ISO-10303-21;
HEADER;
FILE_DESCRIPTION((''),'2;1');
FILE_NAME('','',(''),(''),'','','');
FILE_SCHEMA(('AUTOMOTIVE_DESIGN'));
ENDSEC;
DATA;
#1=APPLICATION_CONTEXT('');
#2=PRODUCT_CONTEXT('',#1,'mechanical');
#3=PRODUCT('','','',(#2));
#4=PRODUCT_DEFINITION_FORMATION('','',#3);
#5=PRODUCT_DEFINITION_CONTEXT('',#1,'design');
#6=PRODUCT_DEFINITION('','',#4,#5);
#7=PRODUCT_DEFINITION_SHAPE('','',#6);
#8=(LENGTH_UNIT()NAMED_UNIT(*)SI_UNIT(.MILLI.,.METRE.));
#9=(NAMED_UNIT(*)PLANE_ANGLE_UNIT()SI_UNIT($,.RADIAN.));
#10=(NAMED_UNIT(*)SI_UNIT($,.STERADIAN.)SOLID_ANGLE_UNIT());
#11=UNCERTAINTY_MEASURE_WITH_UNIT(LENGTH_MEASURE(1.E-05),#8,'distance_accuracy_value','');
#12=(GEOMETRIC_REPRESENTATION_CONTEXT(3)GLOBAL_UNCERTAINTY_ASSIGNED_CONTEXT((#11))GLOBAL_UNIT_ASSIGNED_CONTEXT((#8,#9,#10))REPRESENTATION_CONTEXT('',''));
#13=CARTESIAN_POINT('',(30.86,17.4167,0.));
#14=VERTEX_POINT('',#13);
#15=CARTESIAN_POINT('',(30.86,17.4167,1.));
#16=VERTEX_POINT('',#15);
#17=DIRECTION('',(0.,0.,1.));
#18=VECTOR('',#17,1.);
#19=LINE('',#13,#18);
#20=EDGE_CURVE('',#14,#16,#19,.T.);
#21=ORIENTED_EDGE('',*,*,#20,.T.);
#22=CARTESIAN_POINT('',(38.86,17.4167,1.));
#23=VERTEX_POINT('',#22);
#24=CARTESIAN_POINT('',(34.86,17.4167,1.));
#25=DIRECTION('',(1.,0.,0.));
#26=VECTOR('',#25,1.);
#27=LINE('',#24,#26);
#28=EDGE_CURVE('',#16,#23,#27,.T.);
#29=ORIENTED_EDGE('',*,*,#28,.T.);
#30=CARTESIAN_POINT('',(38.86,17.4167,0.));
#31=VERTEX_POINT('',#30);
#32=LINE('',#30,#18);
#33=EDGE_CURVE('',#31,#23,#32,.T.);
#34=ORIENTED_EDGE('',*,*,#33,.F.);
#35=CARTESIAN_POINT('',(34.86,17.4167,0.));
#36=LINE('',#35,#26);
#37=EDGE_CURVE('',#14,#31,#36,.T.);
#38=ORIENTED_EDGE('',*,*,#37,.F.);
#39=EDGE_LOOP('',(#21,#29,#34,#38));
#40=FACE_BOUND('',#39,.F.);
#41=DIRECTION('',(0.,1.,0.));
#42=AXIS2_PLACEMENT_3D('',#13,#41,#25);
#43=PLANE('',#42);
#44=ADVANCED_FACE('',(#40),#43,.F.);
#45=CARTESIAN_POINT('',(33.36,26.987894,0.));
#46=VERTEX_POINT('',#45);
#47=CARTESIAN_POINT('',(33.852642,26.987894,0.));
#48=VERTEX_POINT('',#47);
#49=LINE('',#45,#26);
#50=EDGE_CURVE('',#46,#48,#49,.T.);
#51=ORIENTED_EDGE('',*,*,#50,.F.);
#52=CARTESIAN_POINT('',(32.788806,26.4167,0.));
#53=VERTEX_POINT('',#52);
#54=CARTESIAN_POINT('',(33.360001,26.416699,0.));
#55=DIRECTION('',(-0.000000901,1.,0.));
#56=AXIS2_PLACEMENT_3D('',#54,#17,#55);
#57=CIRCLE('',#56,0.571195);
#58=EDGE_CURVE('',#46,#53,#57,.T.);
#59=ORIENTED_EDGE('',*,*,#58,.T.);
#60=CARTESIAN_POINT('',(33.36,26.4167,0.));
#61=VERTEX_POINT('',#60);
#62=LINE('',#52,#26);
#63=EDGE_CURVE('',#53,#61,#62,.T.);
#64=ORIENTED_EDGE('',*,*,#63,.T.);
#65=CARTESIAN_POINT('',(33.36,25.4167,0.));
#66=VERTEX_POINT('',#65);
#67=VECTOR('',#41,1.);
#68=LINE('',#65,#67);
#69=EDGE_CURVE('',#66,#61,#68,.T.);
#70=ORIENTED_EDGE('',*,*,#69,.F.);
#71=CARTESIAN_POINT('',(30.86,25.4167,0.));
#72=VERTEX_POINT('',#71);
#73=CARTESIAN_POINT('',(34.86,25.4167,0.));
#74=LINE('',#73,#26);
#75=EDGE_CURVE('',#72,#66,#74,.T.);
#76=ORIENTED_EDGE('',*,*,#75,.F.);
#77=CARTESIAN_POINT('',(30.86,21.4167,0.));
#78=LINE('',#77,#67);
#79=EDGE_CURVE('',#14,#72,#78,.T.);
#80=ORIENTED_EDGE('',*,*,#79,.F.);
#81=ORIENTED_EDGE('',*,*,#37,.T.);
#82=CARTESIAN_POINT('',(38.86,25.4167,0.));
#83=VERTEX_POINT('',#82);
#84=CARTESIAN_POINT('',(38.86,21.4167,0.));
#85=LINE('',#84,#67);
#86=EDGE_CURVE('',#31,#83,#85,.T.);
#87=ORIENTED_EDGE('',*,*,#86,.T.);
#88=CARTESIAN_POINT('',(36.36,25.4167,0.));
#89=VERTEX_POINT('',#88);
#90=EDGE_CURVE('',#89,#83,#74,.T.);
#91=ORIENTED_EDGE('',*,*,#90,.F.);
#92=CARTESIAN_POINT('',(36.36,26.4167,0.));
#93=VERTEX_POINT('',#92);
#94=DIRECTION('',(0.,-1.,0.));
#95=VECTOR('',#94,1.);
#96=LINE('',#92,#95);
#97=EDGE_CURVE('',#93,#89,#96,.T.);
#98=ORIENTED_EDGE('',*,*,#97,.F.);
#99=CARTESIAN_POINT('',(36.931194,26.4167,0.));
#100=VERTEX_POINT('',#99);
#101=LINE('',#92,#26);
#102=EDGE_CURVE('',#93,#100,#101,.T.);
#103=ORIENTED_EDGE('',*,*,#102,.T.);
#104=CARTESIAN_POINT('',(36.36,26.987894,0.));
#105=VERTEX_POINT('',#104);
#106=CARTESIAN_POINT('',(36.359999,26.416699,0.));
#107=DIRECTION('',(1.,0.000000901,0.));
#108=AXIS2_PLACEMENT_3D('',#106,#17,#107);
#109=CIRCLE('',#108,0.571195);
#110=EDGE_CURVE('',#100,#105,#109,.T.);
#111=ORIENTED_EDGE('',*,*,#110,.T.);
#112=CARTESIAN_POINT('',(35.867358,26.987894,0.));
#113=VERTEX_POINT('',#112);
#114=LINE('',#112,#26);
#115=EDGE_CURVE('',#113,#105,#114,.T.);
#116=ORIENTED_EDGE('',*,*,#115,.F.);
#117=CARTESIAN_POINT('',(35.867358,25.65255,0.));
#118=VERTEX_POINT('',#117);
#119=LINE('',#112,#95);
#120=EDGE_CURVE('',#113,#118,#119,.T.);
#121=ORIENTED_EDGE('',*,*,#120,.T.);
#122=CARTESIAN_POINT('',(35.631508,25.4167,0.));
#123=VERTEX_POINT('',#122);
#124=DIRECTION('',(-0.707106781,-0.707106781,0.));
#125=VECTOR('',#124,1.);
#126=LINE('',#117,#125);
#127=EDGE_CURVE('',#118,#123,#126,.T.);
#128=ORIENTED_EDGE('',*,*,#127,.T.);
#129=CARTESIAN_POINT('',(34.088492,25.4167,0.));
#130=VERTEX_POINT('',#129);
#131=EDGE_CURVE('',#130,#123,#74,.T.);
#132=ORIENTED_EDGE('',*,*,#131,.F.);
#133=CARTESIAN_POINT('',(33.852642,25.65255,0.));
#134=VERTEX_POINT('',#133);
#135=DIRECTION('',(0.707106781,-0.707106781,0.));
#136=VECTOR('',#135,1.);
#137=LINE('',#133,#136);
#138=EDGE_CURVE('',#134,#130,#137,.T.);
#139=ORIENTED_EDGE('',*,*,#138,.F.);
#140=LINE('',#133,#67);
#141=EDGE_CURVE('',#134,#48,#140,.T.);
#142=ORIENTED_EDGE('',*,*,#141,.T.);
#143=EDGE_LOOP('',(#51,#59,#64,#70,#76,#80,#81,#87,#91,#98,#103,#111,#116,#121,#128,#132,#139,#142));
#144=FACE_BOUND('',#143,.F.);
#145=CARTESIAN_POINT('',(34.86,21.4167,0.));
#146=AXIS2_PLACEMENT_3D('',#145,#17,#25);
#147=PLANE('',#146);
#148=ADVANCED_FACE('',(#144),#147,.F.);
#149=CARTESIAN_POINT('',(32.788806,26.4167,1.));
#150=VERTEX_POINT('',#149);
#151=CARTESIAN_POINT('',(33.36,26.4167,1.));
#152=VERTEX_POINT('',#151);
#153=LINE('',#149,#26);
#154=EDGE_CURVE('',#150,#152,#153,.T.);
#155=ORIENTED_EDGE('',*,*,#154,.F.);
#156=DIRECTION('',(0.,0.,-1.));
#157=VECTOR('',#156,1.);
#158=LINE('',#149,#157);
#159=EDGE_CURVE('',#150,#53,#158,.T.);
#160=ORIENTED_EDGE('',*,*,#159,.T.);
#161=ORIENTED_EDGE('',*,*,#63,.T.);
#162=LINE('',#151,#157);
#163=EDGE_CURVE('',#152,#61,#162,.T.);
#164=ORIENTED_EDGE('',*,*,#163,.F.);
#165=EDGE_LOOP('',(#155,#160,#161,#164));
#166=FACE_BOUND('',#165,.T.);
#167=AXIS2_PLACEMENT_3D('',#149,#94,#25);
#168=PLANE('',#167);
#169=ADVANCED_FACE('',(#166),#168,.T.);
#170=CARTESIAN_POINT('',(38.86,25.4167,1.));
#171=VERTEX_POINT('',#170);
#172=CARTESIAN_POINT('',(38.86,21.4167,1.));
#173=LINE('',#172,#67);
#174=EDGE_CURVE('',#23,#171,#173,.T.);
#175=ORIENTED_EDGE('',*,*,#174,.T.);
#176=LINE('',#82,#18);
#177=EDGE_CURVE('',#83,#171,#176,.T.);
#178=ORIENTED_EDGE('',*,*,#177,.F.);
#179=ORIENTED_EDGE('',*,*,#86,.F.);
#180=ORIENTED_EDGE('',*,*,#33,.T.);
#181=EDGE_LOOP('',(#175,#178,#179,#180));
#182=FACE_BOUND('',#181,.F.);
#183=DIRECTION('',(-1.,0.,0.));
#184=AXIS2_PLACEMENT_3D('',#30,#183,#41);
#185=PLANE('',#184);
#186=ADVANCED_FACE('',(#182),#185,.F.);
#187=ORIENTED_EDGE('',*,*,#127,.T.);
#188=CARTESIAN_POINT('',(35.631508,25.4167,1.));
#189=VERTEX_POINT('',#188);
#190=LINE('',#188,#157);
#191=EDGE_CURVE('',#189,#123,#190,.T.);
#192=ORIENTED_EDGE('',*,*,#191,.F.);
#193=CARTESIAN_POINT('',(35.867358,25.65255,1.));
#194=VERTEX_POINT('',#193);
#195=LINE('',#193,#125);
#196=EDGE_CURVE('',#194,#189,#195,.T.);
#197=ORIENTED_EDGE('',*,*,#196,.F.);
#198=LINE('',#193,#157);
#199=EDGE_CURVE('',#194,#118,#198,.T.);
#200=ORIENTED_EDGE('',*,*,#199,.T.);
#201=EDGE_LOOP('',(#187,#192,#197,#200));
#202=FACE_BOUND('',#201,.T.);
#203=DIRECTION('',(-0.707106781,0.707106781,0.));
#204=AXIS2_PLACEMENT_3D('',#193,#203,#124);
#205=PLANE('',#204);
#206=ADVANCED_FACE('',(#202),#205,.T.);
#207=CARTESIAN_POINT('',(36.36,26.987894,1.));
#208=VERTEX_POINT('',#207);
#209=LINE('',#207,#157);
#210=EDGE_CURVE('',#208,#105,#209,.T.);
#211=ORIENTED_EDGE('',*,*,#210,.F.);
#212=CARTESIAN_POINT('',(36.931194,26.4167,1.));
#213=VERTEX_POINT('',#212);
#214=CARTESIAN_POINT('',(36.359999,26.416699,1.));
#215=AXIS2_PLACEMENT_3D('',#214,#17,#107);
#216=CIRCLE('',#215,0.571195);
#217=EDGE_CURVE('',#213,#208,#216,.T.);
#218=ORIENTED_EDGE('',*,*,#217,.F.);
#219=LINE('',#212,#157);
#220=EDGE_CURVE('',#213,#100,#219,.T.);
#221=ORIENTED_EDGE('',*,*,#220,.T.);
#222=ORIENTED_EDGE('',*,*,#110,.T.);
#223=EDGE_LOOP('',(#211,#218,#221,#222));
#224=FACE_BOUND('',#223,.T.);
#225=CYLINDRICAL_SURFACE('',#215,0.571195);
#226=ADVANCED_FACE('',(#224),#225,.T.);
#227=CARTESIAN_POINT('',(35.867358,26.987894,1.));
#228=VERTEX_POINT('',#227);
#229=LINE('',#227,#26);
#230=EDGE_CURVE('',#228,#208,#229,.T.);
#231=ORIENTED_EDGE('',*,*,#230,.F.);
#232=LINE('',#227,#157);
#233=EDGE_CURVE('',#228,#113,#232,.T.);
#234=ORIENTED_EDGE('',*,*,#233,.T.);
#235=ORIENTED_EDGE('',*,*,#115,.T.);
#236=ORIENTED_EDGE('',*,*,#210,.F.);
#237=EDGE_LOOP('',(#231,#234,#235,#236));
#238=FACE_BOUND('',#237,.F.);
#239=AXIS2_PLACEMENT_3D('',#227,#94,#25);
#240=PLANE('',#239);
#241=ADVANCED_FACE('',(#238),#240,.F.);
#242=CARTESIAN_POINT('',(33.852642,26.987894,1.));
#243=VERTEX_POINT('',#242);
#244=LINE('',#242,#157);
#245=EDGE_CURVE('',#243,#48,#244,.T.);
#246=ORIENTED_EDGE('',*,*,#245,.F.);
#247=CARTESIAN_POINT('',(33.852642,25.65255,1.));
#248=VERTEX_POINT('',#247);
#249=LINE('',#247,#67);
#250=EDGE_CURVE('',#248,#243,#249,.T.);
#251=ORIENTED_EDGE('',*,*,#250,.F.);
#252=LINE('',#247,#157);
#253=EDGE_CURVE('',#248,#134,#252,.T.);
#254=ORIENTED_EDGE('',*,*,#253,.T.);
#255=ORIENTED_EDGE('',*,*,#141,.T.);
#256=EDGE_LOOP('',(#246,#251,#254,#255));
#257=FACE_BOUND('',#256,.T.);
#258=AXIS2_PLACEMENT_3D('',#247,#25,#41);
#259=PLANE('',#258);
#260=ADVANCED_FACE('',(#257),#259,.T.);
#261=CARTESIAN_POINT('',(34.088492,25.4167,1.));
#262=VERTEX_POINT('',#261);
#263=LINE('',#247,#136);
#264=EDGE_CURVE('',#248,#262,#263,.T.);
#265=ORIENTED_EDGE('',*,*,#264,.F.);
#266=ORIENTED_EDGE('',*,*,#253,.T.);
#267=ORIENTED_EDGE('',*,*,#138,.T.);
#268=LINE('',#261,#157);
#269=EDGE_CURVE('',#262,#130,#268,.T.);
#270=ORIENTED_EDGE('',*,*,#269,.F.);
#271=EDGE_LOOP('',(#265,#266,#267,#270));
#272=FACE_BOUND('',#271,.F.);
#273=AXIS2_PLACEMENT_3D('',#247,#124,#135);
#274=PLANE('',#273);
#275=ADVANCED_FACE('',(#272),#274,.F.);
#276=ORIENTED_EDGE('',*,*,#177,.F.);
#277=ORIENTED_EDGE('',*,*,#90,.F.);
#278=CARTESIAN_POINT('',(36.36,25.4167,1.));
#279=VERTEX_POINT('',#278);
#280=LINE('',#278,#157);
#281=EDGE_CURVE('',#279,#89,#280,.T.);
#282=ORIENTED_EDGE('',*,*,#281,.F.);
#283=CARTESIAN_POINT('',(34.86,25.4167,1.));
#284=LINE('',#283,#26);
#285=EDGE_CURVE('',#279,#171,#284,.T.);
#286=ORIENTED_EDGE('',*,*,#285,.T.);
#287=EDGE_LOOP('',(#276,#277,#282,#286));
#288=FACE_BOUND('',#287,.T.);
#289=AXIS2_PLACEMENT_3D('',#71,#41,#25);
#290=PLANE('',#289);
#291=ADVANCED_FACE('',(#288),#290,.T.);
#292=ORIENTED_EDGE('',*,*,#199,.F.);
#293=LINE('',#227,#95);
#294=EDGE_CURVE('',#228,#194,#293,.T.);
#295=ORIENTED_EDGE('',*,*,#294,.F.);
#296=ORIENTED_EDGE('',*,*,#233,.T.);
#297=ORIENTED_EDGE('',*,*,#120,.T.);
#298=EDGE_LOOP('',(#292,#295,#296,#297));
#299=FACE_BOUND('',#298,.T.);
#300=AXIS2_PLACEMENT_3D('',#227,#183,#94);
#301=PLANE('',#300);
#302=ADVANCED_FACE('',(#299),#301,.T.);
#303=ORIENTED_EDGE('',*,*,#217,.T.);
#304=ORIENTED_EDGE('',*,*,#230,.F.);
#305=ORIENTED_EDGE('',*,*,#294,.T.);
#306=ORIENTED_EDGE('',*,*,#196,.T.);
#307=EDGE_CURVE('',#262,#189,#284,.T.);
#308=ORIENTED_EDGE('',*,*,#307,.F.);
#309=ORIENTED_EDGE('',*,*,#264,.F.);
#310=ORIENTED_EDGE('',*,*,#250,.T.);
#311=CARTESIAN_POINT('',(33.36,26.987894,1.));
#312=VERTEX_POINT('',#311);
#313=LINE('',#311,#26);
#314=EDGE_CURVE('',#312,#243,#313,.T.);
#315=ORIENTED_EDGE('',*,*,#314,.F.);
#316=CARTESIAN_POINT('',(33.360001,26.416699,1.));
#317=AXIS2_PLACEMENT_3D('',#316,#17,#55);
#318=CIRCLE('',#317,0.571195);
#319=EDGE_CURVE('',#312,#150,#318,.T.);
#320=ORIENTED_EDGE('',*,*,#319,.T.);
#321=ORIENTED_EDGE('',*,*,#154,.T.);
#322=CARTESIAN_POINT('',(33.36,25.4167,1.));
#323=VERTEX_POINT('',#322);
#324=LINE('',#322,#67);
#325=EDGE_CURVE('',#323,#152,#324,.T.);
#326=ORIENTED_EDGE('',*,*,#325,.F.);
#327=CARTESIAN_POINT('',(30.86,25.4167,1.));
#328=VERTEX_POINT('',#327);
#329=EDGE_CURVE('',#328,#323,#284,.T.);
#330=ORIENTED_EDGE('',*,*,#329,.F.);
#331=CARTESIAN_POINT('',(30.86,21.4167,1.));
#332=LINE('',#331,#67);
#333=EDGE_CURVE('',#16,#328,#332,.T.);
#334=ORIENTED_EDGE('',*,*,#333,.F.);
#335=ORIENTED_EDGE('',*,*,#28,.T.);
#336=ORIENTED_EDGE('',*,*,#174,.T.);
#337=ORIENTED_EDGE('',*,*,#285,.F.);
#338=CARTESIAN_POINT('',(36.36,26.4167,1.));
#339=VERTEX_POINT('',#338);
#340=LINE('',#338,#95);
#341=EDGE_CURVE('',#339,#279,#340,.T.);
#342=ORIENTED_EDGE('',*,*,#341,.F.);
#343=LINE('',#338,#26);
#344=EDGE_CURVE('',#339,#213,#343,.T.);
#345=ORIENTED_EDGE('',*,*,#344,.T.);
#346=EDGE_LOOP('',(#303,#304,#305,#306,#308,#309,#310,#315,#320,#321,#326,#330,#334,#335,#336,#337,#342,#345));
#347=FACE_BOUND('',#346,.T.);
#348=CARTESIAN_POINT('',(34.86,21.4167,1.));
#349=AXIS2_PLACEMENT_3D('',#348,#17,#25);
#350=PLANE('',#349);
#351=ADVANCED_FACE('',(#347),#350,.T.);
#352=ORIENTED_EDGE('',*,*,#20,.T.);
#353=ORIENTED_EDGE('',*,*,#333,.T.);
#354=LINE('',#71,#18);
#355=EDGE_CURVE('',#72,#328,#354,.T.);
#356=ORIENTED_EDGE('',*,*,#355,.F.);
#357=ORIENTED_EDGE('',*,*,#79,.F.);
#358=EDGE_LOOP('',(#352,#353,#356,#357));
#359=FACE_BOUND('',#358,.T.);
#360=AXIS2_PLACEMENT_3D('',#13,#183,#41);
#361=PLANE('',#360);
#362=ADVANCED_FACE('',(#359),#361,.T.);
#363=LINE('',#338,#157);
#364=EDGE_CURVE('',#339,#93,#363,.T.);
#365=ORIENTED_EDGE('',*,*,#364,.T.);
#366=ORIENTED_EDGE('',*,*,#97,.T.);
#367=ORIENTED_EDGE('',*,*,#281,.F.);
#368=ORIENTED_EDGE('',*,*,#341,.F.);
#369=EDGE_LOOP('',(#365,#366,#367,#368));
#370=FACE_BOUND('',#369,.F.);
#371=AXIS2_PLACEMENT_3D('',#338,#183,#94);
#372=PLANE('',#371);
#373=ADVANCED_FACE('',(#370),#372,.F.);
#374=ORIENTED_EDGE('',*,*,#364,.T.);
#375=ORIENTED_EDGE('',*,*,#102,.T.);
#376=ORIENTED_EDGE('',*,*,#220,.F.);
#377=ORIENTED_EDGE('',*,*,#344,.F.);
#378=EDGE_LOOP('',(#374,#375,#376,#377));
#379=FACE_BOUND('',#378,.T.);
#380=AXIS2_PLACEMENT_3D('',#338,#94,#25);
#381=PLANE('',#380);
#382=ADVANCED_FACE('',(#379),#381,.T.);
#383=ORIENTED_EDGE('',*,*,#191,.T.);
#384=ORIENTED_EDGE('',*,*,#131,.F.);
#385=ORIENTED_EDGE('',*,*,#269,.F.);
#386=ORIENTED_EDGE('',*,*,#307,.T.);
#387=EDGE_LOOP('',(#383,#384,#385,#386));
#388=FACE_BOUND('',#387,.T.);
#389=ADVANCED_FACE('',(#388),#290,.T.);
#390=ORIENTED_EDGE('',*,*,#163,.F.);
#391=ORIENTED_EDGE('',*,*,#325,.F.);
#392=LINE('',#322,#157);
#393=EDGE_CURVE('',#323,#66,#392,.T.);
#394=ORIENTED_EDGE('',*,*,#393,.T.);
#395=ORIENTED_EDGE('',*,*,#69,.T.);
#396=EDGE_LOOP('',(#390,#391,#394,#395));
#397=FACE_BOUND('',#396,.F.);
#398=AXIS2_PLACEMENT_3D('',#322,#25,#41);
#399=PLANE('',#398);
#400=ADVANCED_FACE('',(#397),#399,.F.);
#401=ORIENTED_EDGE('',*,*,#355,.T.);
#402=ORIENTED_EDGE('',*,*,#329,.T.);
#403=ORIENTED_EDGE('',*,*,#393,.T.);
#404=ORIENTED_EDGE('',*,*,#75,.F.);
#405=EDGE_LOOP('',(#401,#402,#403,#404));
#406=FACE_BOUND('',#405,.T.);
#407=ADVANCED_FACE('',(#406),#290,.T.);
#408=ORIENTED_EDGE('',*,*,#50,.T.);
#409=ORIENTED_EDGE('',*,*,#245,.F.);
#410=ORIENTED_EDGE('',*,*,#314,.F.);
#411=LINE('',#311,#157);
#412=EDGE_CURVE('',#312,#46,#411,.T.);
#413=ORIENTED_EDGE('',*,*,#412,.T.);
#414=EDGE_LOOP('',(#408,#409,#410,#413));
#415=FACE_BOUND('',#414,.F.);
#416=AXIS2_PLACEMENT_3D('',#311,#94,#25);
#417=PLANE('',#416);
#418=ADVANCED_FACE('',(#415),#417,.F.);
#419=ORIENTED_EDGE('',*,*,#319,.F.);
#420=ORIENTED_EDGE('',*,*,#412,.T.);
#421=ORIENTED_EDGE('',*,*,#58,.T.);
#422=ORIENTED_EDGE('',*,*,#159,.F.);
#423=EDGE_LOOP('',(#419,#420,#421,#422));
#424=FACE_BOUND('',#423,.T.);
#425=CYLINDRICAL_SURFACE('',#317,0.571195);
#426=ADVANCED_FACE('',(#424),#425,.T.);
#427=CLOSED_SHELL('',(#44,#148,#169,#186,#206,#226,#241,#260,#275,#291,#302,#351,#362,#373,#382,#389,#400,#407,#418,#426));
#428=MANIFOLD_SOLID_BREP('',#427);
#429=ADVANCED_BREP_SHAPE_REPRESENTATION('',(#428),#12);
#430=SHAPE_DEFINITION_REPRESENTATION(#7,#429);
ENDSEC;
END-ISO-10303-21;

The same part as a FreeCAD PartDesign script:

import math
import FreeCAD as App
import Part
import Sketcher


def add_polygon(sketch, points):
    """Adds a closed chain of lines whose ends are joined by coincident constraints."""
    first, n = sketch.GeometryCount, len(points)
    for a, b in zip(points, points[1:] + points[:1]):
        sketch.addGeometry(Part.LineSegment(App.Vector(*a, 0), App.Vector(*b, 0)), False)
    for i in range(n):
        sketch.addConstraint(Sketcher.Constraint("Coincident", first + i, 2, first + (i + 1) % n, 1))

doc = App.newDocument("Part")
params = doc.addObject("Spreadsheet::Sheet", "Params")
for row, (alias, value) in enumerate([
    ("sketch1_height", "1 mm"),
    ("pad1_length", "1 mm"),
    ("sketch2_width", "8 mm"),
    ("pad2_length", "1 mm"),
], start=1):
    params.set(f"A{row}", alias)
    params.set(f"B{row}", "=" + value)
    params.setAlias(f"B{row}", alias)

body = doc.addObject("PartDesign::Body", "Body")
body.AllowCompound = True

sketch1 = body.newObject("Sketcher::SketchObject", "Sketch")
sketch1.AttachmentSupport = (doc.getObject("XY_Plane"), [""])
sketch1.MapMode = "FlatFace"
sketch1.AttachmentOffset = App.Placement(App.Vector(0, 0, 1), App.Rotation())
sketch1.addGeometry([
    Part.LineSegment(App.Vector(36.36, 25.42, 0), App.Vector(36.36, 26.42, 0)),
    Part.LineSegment(App.Vector(36.36, 26.42, 0), App.Vector(36.93, 26.42, 0)),
    Part.ArcOfCircle(Part.Circle(App.Vector(36.36, 26.42, 0), App.Vector(0, 0, 1), 0.57), math.radians(0), math.radians(90)),
    Part.LineSegment(App.Vector(36.36, 26.99, 0), App.Vector(35.87, 26.99, 0)),
    Part.LineSegment(App.Vector(35.87, 26.99, 0), App.Vector(35.87, 25.65, 0)),
    Part.LineSegment(App.Vector(35.87, 25.65, 0), App.Vector(35.63, 25.42, 0)),
    Part.LineSegment(App.Vector(35.63, 25.42, 0), App.Vector(36.36, 25.42, 0)),
    Part.LineSegment(App.Vector(33.36, 26.42, 0), App.Vector(33.36, 25.42, 0)),
    Part.LineSegment(App.Vector(33.36, 25.42, 0), App.Vector(34.09, 25.42, 0)),
    Part.LineSegment(App.Vector(34.09, 25.42, 0), App.Vector(33.85, 25.65, 0)),
    Part.LineSegment(App.Vector(33.85, 25.65, 0), App.Vector(33.85, 26.99, 0)),
    Part.LineSegment(App.Vector(33.85, 26.99, 0), App.Vector(33.36, 26.99, 0)),
    Part.ArcOfCircle(Part.Circle(App.Vector(33.36, 26.42, 0), App.Vector(0, 0, 1), 0.57), math.radians(90), math.radians(180)),
    Part.LineSegment(App.Vector(32.79, 26.42, 0), App.Vector(33.36, 26.42, 0)),
], False)
sketch1.addConstraint([
    Sketcher.Constraint("Coincident", 0, 2, 1, 1),
    Sketcher.Constraint("Coincident", 1, 2, 2, 1),
    Sketcher.Constraint("Tangent", 2, 2, 3, 1),
    Sketcher.Constraint("Coincident", 3, 2, 4, 1),
    Sketcher.Constraint("Coincident", 4, 2, 5, 1),
    Sketcher.Constraint("Coincident", 5, 2, 6, 1),
    Sketcher.Constraint("Coincident", 6, 2, 0, 1),
    Sketcher.Constraint("Coincident", 7, 2, 8, 1),
    Sketcher.Constraint("Coincident", 8, 2, 9, 1),
    Sketcher.Constraint("Coincident", 9, 2, 10, 1),
    Sketcher.Constraint("Coincident", 10, 2, 11, 1),
    Sketcher.Constraint("Tangent", 11, 2, 12, 1),
    Sketcher.Constraint("Coincident", 12, 2, 13, 1),
    Sketcher.Constraint("Coincident", 13, 2, 7, 1),
    Sketcher.Constraint("Vertical", 0),
    Sketcher.Constraint("Horizontal", 1),
    Sketcher.Constraint("Horizontal", 3),
    Sketcher.Constraint("Vertical", 4),
    Sketcher.Constraint("Horizontal", 6),
    Sketcher.Constraint("Vertical", 7),
    Sketcher.Constraint("Horizontal", 8),
    Sketcher.Constraint("Vertical", 10),
    Sketcher.Constraint("Horizontal", 11),
    Sketcher.Constraint("Horizontal", 13),
    Sketcher.Constraint("Coincident", 0, 2, 2, 3),
    Sketcher.Constraint("Coincident", 13, 2, 12, 3),
    Sketcher.Constraint("Equal", 2, 12),
    Sketcher.Constraint("Perpendicular", 5, 9),
    Sketcher.Constraint("Horizontal", 2, 3, 12, 3),
    Sketcher.Constraint("Horizontal", 6, 2, 7, 2),
    Sketcher.Constraint("Horizontal", 4, 2, 9, 2),
    Sketcher.Constraint("Equal", 6, 8),
    Sketcher.Constraint("Equal", 3, 11),
    Sketcher.Constraint("DistanceY", 0, 1, 0, 2, 1.0),
    Sketcher.Constraint("DistanceX", 12, 3, 2, 3, 2.999999),
    Sketcher.Constraint("DistanceX", -1, 1, 2, 3, 36.359999),
    Sketcher.Constraint("Radius", 2, 0.571195),
    Sketcher.Constraint("DistanceX", 3, 2, 3, 1, 0.492642),
    Sketcher.Constraint("DistanceY", -1, 1, 2, 3, 26.416699),
    Sketcher.Constraint("DistanceX", 6, 1, 6, 2, 0.728492),
])
sketch1.setExpression("Constraints[33]", "Params.sketch1_height")
pad1 = body.newObject("PartDesign::Pad", "Pad")
pad1.Profile = sketch1
pad1.setExpression("Length", "Params.pad1_length")
pad1.Reversed = True
body2 = doc.addObject("PartDesign::Body", "Body001")

sketch2 = body2.newObject("Sketcher::SketchObject", "Sketch001")
sketch2.AttachmentSupport = (doc.getObject("XY_Plane001"), [""])
sketch2.MapMode = "FlatFace"
add_polygon(sketch2, [(31, 25), (31, 17), (39, 17), (39, 25)])
sketch2.addConstraint([
    Sketcher.Constraint("Vertical", 0),
    Sketcher.Constraint("Horizontal", 1),
    Sketcher.Constraint("Vertical", 2),
    Sketcher.Constraint("Horizontal", 3),
    Sketcher.Constraint("Equal", 3, 0),
    Sketcher.Constraint("DistanceX", 1, 1, 1, 2, 8.0),
    Sketcher.Constraint("DistanceX", -1, 1, 0, 2, 30.86),
    Sketcher.Constraint("DistanceY", -1, 1, 0, 2, 17.4167),
])
sketch2.setExpression("Constraints[9]", "Params.sketch2_width")
pad2 = body2.newObject("PartDesign::Pad", "Pad001")
pad2.Profile = sketch2
pad2.setExpression("Length", "Params.pad2_length")
doc.recompute()

boolean = body2.newObject("PartDesign::Boolean", "Boolean")
boolean.Type = "Fuse"
boolean.addObjects([body])

doc.recompute()
